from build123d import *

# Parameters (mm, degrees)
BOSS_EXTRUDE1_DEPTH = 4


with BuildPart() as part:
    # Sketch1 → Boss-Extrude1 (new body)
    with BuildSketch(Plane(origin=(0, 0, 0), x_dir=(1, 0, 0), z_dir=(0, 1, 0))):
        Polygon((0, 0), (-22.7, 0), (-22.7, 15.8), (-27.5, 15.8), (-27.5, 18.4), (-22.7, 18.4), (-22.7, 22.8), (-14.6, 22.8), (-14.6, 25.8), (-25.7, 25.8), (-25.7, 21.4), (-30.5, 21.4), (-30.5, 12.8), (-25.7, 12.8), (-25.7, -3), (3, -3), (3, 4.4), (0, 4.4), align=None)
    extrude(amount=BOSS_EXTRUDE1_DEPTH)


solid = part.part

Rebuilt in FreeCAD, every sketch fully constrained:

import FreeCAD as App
import Part
import Sketcher
from FreeCAD import Vector
Q = App.Units.Quantity

doc = App.newDocument("Part")
body = doc.addObject("PartDesign::Body", "Body")

# Sketch on XZ plane
sketch1 = doc.addObject("Sketcher::SketchObject", "Sketch")
body.addObject(sketch1)
sketch1.AttachmentSupport = (doc.XZ_Plane, [""])
sketch1.MapMode = "FlatFace"
sketch1.addGeometry([
    Part.LineSegment(Vector(0, 0, 0), Vector(-22.7, 0, 0)),  # 0
    Part.LineSegment(Vector(-22.7, 0, 0), Vector(-22.7, -15.8, 0)),  # 1
    Part.LineSegment(Vector(-22.7, -15.8, 0), Vector(-27.5, -15.8, 0)),  # 2
    Part.LineSegment(Vector(-27.5, -15.8, 0), Vector(-27.5, -18.4, 0)),  # 3
    Part.LineSegment(Vector(-27.5, -18.4, 0), Vector(-22.7, -18.4, 0)),  # 4
    Part.LineSegment(Vector(-22.7, -18.4, 0), Vector(-22.7, -22.8, 0)),  # 5
    Part.LineSegment(Vector(-22.7, -22.8, 0), Vector(-14.6, -22.8, 0)),  # 6
    Part.LineSegment(Vector(-14.6, -22.8, 0), Vector(-14.6, -25.8, 0)),  # 7
    Part.LineSegment(Vector(-14.6, -25.8, 0), Vector(-25.7, -25.8, 0)),  # 8
    Part.LineSegment(Vector(-25.7, -25.8, 0), Vector(-25.7, -21.4, 0)),  # 9
    Part.LineSegment(Vector(-25.7, -21.4, 0), Vector(-30.5, -21.4, 0)),  # 10
    Part.LineSegment(Vector(-30.5, -21.4, 0), Vector(-30.5, -12.8, 0)),  # 11
    Part.LineSegment(Vector(-30.5, -12.8, 0), Vector(-25.7, -12.8, 0)),  # 12
    Part.LineSegment(Vector(-25.7, -12.8, 0), Vector(-25.7, 3, 0)),  # 13
    Part.LineSegment(Vector(-25.7, 3, 0), Vector(3, 3, 0)),  # 14
    Part.LineSegment(Vector(3, 3, 0), Vector(3, -4.4, 0)),  # 15
    Part.LineSegment(Vector(3, -4.4, 0), Vector(0, -4.4, 0)),  # 16
    Part.LineSegment(Vector(0, -4.4, 0), Vector(0, 0, 0)),  # 17
], False)
sketch1.addConstraint([
    Sketcher.Constraint("Coincident", 0, 2, 1, 1),
    Sketcher.Constraint("Coincident", 1, 2, 2, 1),
    Sketcher.Constraint("Coincident", 2, 2, 3, 1),
    Sketcher.Constraint("Coincident", 3, 2, 4, 1),
    Sketcher.Constraint("Coincident", 4, 2, 5, 1),
    Sketcher.Constraint("Coincident", 5, 2, 6, 1),
    Sketcher.Constraint("Coincident", 6, 2, 7, 1),
    Sketcher.Constraint("Coincident", 7, 2, 8, 1),
    Sketcher.Constraint("Coincident", 8, 2, 9, 1),
    Sketcher.Constraint("Coincident", 9, 2, 10, 1),
    Sketcher.Constraint("Coincident", 10, 2, 11, 1),
    Sketcher.Constraint("Coincident", 11, 2, 12, 1),
    Sketcher.Constraint("Coincident", 12, 2, 13, 1),
    Sketcher.Constraint("Coincident", 13, 2, 14, 1),
    Sketcher.Constraint("Coincident", 14, 2, 15, 1),
    Sketcher.Constraint("Coincident", 15, 2, 16, 1),
    Sketcher.Constraint("Coincident", 16, 2, 17, 1),
    Sketcher.Constraint("Coincident", 17, 2, 0, 1),
    Sketcher.Constraint("Horizontal", 0),
    Sketcher.Constraint("Vertical", 1),
    Sketcher.Constraint("Horizontal", 2),
    Sketcher.Constraint("Vertical", 3),
    Sketcher.Constraint("Horizontal", 4),
    Sketcher.Constraint("Vertical", 5),
    Sketcher.Constraint("Horizontal", 6),
    Sketcher.Constraint("Vertical", 7),
    Sketcher.Constraint("Horizontal", 8),
    Sketcher.Constraint("Vertical", 9),
    Sketcher.Constraint("Horizontal", 10),
    Sketcher.Constraint("Vertical", 11),
    Sketcher.Constraint("Horizontal", 12),
    Sketcher.Constraint("Vertical", 13),
    Sketcher.Constraint("Horizontal", 14),
    Sketcher.Constraint("Vertical", 15),
    Sketcher.Constraint("Horizontal", 16),
    Sketcher.Constraint("Vertical", 17),
    Sketcher.Constraint("Coincident", 17, 2, -1, 1),
    Sketcher.Constraint("Vertical", 1, 2, 4, 2),
    Sketcher.Constraint("Vertical", 9, 2, 12, 2),
    Sketcher.Constraint("Equal", 4, 10),
    Sketcher.Constraint("Equal", 16, 7),
    Sketcher.Constraint("Equal", 5, 9),
    Sketcher.Constraint("Equal", 1, 13),
    Sketcher.Constraint("Equal", 9, 17),
    Sketcher.Constraint("DistanceX", 16, 2, 16, 1, Q("3 mm")),
    Sketcher.Constraint("DistanceX", 0, 2, 0, 1, Q("22.7 mm")),
    Sketcher.Constraint("DistanceX", 2, 2, 2, 1, Q("4.8 mm")),
    Sketcher.Constraint("DistanceX", 6, 1, 6, 2, Q("8.1 mm")),
    Sketcher.Constraint("DistanceX", 8, 2, 8, 1, Q("11.1 mm")),
    Sketcher.Constraint("DistanceY", 1, 2, 1, 1, Q("15.8 mm")),
    Sketcher.Constraint("DistanceY", 3, 2, 3, 1, Q("2.6 mm")),
    Sketcher.Constraint("DistanceY", 5, 2, 5, 1, Q("4.4 mm")),
    Sketcher.Constraint("DistanceY", 11, 1, 11, 2, Q("8.6 mm")),
])
pad1 = doc.addObject("PartDesign::Pad", "Pad")
body.addObject(pad1)
pad1.Profile = sketch1
pad1.Length = 4
pad1.Reversed = True

doc.recompute()
